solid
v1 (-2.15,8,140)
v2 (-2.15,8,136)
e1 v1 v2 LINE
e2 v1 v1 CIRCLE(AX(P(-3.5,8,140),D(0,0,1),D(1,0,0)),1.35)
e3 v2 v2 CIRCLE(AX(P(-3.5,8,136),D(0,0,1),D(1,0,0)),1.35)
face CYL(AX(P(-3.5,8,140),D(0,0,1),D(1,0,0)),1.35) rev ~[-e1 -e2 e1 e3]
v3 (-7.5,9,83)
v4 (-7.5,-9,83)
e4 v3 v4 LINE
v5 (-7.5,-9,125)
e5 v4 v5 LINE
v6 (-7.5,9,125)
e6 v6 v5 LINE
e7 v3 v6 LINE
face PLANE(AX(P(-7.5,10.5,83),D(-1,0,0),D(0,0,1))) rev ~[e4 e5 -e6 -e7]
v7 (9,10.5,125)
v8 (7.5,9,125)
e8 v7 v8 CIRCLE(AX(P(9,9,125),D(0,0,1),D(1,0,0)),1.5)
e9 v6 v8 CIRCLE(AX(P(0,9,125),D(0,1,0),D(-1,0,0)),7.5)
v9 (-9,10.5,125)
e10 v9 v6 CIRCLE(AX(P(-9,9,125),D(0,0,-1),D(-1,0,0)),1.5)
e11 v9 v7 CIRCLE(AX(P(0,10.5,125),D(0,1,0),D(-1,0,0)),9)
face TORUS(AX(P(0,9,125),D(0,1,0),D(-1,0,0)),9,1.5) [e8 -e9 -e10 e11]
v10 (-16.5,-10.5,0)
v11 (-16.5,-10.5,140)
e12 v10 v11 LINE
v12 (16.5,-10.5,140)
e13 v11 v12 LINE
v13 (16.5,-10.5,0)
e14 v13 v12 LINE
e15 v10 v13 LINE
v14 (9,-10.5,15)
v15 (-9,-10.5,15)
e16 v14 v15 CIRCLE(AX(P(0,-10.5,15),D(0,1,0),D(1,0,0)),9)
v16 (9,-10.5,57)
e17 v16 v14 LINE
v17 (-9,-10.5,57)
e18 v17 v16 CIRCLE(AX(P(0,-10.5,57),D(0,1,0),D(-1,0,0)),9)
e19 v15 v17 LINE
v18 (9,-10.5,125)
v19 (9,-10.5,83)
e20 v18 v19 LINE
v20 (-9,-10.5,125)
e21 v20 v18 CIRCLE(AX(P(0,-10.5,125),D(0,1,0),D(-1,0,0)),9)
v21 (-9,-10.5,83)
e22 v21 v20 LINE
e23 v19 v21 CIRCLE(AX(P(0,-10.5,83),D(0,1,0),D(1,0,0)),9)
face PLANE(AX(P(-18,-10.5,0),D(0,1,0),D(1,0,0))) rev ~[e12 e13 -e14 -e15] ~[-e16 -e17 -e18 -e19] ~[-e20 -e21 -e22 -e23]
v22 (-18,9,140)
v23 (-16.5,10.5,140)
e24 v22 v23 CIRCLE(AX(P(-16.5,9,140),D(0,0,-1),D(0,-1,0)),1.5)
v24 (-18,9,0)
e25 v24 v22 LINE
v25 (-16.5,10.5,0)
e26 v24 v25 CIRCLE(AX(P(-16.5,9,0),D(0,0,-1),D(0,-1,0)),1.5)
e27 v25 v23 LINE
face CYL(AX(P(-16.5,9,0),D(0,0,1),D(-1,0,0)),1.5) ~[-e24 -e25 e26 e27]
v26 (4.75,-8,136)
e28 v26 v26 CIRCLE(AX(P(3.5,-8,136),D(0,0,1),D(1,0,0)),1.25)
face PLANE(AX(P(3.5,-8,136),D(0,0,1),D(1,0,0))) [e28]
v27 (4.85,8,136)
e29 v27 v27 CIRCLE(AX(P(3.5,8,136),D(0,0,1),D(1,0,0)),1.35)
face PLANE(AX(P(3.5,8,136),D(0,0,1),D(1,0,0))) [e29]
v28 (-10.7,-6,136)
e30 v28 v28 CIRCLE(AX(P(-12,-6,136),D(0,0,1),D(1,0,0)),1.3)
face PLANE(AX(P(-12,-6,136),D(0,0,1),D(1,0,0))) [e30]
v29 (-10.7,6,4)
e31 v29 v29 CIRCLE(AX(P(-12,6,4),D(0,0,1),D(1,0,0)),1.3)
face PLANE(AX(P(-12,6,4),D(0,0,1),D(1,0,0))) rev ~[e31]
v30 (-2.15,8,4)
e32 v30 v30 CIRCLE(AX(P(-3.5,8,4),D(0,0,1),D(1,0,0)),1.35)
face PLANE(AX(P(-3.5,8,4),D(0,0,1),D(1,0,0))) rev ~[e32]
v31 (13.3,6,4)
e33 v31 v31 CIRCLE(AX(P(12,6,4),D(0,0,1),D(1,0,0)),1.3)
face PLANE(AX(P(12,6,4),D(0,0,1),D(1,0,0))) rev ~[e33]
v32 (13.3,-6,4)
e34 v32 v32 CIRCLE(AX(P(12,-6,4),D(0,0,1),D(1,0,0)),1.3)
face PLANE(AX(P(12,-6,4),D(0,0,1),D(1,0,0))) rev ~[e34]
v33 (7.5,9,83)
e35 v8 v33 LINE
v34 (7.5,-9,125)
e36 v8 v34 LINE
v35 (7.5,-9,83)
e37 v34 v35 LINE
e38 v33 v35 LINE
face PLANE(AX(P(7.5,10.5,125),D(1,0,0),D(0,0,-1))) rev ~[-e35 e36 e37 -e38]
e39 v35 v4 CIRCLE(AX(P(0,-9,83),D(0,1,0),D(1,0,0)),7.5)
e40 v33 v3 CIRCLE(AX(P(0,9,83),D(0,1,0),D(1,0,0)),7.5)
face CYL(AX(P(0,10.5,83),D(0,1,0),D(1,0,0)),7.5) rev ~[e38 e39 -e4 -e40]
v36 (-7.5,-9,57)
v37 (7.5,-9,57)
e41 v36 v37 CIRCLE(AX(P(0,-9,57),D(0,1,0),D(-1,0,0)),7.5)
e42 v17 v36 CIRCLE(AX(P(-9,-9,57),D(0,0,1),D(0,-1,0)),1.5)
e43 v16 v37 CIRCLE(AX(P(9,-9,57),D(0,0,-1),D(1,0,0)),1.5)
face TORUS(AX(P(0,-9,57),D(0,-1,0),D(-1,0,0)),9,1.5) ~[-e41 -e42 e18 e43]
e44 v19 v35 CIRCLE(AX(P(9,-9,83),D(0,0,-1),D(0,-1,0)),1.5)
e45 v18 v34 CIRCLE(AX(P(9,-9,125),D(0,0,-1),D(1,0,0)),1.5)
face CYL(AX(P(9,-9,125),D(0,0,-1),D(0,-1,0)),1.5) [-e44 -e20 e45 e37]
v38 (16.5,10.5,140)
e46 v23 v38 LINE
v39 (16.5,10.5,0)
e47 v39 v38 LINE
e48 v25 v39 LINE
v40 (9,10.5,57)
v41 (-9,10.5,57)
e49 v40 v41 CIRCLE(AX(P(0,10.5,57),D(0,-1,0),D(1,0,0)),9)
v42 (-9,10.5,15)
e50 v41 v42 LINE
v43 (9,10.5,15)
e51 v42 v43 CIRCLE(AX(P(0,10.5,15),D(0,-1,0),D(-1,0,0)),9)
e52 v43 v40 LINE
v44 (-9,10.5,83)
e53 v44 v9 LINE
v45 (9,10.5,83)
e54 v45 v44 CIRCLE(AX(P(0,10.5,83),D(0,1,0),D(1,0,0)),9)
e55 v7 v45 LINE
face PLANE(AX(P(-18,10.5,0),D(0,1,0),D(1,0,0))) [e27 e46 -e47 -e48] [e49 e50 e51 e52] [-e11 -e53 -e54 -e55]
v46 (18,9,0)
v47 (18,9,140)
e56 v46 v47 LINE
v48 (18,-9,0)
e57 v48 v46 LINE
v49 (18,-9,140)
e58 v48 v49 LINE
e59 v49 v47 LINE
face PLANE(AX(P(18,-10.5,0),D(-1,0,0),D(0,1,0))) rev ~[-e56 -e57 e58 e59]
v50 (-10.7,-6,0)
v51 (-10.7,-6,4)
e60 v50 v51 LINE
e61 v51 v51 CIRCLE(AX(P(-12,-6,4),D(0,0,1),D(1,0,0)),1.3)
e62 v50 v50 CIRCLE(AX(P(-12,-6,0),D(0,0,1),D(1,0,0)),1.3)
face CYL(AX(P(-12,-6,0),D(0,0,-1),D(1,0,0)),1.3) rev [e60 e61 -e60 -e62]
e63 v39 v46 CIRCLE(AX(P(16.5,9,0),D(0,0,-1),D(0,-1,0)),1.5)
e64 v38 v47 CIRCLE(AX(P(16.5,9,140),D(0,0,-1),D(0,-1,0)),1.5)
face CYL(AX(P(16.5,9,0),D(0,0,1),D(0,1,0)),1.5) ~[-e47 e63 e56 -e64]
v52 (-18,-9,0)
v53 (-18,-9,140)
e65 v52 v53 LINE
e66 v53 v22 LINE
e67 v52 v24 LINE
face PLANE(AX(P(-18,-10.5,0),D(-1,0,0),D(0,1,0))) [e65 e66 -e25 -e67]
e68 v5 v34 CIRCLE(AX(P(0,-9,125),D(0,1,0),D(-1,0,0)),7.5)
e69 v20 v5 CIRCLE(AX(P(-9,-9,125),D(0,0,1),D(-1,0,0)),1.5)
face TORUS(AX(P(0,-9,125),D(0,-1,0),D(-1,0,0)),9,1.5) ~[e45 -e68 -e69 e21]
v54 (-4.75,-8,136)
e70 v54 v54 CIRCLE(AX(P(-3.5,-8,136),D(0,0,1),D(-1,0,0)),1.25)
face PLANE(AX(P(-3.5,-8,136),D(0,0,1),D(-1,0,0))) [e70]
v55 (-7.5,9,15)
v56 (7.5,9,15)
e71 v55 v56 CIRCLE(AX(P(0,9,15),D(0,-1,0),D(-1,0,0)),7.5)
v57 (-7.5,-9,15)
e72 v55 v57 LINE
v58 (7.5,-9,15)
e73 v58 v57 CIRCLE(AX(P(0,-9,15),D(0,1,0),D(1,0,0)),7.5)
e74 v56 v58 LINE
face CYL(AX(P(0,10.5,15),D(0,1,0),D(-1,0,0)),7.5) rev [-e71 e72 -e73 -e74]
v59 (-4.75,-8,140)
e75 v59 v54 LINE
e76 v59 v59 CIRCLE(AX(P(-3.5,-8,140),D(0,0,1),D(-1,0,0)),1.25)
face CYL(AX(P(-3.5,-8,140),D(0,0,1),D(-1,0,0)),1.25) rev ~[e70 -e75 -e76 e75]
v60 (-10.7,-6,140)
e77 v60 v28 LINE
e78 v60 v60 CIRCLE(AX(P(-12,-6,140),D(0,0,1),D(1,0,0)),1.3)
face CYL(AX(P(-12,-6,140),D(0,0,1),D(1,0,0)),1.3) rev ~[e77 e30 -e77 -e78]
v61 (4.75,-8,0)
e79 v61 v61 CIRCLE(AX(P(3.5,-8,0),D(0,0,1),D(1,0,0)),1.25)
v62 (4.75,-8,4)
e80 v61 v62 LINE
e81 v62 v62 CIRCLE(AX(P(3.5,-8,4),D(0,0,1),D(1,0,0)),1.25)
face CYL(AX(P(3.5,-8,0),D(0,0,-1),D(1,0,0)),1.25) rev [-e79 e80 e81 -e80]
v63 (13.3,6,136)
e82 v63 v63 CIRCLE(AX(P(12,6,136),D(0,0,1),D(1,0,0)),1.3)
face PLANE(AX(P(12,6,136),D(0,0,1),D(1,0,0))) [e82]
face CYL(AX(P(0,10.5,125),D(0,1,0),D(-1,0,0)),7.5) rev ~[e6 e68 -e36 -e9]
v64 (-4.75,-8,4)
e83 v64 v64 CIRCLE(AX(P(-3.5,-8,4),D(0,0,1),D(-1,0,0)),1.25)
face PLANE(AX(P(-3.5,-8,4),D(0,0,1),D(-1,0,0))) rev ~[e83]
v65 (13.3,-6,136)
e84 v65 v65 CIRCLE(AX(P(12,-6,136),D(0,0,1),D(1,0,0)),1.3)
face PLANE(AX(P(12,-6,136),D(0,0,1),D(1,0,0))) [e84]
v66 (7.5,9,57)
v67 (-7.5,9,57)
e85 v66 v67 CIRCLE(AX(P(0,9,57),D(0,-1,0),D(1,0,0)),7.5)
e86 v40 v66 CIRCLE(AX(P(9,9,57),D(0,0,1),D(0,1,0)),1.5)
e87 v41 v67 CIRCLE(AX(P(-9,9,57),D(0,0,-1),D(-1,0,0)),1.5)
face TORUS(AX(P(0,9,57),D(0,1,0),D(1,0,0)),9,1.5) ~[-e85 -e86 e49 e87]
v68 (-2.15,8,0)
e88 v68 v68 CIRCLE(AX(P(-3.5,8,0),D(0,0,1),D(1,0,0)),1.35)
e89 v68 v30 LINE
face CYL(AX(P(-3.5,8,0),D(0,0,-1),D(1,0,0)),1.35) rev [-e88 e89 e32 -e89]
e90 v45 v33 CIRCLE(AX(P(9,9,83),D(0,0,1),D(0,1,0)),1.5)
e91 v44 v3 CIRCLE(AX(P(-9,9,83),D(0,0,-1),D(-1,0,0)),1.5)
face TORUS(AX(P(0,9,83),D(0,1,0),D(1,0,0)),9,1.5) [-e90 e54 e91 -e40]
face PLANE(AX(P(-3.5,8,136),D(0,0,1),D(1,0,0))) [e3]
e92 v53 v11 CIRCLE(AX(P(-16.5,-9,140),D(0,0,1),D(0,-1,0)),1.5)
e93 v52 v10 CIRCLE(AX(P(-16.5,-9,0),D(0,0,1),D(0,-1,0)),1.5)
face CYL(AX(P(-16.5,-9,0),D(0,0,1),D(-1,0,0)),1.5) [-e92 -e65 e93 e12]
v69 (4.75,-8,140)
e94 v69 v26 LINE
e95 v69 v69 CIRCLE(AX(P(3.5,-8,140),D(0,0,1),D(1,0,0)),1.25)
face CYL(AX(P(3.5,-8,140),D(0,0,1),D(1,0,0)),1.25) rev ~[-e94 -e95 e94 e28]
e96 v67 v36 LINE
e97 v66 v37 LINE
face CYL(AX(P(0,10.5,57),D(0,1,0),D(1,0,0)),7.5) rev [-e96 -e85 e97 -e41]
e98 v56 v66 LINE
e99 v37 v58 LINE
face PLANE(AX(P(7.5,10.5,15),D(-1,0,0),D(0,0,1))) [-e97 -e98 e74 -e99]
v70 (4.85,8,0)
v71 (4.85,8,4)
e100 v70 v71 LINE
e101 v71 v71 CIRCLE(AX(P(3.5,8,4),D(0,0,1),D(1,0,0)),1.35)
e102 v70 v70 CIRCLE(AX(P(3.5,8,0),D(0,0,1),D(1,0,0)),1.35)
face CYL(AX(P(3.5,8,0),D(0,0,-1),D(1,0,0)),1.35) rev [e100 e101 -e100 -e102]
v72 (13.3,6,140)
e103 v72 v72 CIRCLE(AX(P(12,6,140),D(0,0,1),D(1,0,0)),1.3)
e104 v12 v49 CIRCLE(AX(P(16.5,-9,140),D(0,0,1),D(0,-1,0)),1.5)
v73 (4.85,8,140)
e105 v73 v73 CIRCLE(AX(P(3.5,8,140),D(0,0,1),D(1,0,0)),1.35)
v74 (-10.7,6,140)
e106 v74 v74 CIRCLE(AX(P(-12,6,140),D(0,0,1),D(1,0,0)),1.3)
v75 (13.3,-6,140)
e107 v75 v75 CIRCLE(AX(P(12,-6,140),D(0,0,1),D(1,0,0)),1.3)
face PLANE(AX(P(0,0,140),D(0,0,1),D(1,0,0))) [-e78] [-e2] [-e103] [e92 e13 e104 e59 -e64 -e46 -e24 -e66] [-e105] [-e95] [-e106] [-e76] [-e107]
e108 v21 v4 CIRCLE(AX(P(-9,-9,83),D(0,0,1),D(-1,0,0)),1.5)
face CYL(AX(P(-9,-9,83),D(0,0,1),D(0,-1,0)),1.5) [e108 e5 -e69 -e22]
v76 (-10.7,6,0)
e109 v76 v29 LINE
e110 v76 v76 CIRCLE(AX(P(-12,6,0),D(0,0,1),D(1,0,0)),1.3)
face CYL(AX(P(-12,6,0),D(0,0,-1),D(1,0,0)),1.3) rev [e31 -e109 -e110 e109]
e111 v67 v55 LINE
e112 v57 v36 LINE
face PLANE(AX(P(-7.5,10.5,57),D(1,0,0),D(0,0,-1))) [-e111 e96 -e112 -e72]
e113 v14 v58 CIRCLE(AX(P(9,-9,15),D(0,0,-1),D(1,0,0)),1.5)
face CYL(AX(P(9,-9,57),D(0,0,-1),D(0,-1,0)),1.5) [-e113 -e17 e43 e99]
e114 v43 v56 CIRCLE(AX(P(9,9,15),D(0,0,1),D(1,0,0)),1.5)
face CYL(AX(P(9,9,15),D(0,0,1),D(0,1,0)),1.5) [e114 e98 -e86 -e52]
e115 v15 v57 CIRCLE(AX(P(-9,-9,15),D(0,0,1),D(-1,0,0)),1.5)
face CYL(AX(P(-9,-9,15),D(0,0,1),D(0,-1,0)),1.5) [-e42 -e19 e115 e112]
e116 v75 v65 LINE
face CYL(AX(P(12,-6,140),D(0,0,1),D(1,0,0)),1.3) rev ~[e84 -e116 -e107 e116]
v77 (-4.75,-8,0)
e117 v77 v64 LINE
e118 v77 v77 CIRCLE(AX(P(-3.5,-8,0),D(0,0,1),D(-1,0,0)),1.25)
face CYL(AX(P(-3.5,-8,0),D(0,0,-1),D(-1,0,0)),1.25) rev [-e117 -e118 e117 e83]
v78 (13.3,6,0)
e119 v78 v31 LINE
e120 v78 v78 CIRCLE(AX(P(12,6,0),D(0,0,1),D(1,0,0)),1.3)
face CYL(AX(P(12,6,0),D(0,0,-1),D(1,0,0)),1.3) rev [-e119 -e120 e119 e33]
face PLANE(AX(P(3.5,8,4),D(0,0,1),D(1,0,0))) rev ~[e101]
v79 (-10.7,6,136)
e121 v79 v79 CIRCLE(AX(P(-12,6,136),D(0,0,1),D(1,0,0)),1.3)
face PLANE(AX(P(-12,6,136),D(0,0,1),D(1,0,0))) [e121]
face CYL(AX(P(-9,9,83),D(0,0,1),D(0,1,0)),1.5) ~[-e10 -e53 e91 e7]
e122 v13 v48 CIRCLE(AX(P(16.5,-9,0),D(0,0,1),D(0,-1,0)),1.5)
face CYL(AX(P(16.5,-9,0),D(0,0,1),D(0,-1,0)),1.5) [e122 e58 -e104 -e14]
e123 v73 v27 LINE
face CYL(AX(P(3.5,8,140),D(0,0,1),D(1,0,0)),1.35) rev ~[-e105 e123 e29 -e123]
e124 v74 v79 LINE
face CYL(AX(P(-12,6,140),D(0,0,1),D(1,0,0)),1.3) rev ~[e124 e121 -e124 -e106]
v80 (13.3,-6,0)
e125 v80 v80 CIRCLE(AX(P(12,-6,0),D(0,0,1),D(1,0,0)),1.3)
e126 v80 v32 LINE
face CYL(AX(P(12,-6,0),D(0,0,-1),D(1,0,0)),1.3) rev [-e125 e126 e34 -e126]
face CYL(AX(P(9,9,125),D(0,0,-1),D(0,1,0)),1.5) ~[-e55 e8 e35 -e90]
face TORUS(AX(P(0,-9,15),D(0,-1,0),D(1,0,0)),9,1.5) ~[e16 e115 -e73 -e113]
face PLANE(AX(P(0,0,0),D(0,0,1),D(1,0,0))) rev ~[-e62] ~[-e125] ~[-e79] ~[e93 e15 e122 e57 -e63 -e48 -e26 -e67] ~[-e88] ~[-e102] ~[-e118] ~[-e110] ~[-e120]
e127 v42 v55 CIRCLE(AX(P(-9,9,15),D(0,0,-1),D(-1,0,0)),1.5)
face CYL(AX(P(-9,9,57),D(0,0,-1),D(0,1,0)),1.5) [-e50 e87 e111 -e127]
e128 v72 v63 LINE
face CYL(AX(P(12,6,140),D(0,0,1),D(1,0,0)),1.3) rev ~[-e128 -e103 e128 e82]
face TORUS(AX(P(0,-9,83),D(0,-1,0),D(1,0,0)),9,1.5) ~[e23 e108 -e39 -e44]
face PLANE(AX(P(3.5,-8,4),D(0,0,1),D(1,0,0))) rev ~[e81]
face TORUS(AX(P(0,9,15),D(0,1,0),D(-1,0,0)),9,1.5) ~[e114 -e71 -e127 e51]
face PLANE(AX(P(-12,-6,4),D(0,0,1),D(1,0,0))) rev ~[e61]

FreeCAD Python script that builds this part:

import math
import FreeCAD as App
import Part
import Sketcher
Q = App.Units.Quantity


def edges_at(feature, points):
    """Names of the edges that pass closest to the given points."""
    edges = feature.Shape.Edges
    near = lambda p: min(range(len(edges)), key=lambda i: edges[i].distToShape(Part.Vertex(*p))[0])
    return sorted({f"Edge{near(p) + 1}" for p in points})

doc = App.newDocument("Part")
body = doc.addObject("PartDesign::Body", "Body")

# Sketch on XY plane
sketch1 = doc.addObject("Sketcher::SketchObject", "Sketch")
body.addObject(sketch1)
sketch1.AttachmentSupport = (doc.XY_Plane, [""])
sketch1.MapMode = "FlatFace"
sketch1.addGeometry([
    Part.LineSegment(App.Vector(-18, 10, 0), App.Vector(-18, -10, 0)),
    Part.LineSegment(App.Vector(-18, -10, 0), App.Vector(18, -10, 0)),
    Part.LineSegment(App.Vector(18, -10, 0), App.Vector(18, 10, 0)),
    Part.LineSegment(App.Vector(18, 10, 0), App.Vector(-18, 10, 0)),
], False)
sketch1.addConstraint([
    Sketcher.Constraint("Coincident", 0, 2, 1, 1),
    Sketcher.Constraint("Coincident", 1, 2, 2, 1),
    Sketcher.Constraint("Coincident", 2, 2, 3, 1),
    Sketcher.Constraint("Coincident", 3, 2, 0, 1),
    Sketcher.Constraint("Vertical", 0),
    Sketcher.Constraint("Horizontal", 1),
    Sketcher.Constraint("Vertical", 2),
    Sketcher.Constraint("Horizontal", 3),
    Sketcher.Constraint("Symmetric", 0, 2, 2, 2, -1, 1),
    Sketcher.Constraint("DistanceX", 1, 1, 1, 2, Q("36 mm")),
    Sketcher.Constraint("DistanceY", 0, 2, 0, 1, Q("21 mm")),
])
pad1 = doc.addObject("PartDesign::Pad", "Pad")
body.addObject(pad1)
pad1.Profile = sketch1
pad1.Length = 140

# Sketch on XY plane
sketch2 = doc.addObject("Sketcher::SketchObject", "Sketch001")
body.addObject(sketch2)
sketch2.AttachmentSupport = (doc.XY_Plane, [""])
sketch2.MapMode = "FlatFace"
sketch2.addGeometry([
    Part.Circle(App.Vector(12, 6, 0), App.Vector(0, 0, 1), 1.3),  # 0
    Part.Circle(App.Vector(3.5, 8, 0), App.Vector(0, 0, 1), 1.4),  # 1
    Part.Circle(App.Vector(-3.5, 8, 0), App.Vector(0, 0, 1), 1.4),  # 2
    Part.Circle(App.Vector(-12, 6, 0), App.Vector(0, 0, 1), 1.3),  # 3
    Part.Circle(App.Vector(-12, -6, 0), App.Vector(0, 0, 1), 1.3),  # 4
    Part.Circle(App.Vector(-3.5, -8, 0), App.Vector(0, 0, 1), 1.2),  # 5
    Part.Circle(App.Vector(3.5, -8, 0), App.Vector(0, 0, 1), 1.2),  # 6
    Part.Circle(App.Vector(12, -6, 0), App.Vector(0, 0, 1), 1.3),  # 7
], False)
sketch2.addConstraint([
    Sketcher.Constraint("Equal", 1, 2),
    Sketcher.Constraint("Equal", 0, 3),
    Sketcher.Constraint("Equal", 3, 4),
    Sketcher.Constraint("Equal", 5, 6),
    Sketcher.Constraint("Equal", 4, 7),
    Sketcher.Constraint("Symmetric", 0, 3, 4, 3, -1, 1),
    Sketcher.Constraint("Symmetric", 1, 3, 5, 3, -1, 1),
    Sketcher.Constraint("Symmetric", 2, 3, 6, 3, -1, 1),
    Sketcher.Constraint("Symmetric", 3, 3, 7, 3, -1, 1),
    Sketcher.Constraint("Symmetric", 1, 3, 2, 3, -2),
    Sketcher.Constraint("Symmetric", 0, 3, 3, 3, -2),
    Sketcher.Constraint("Diameter", 0, Q("2.6 mm")),
    Sketcher.Constraint("Diameter", 1, Q("2.7 mm")),
    Sketcher.Constraint("Diameter", 5, Q("2.5 mm")),
    Sketcher.Constraint("DistanceX", -1, 1, 0, 3, Q("12 mm")),
    Sketcher.Constraint("DistanceY", -1, 1, 0, 3, Q("6 mm")),
    Sketcher.Constraint("DistanceY", -1, 1, 1, 3, Q("8 mm")),
    Sketcher.Constraint("DistanceX", 2, 3, 1, 3, Q("7 mm")),
])
pocket1 = doc.addObject("PartDesign::Pocket", "Pocket")
body.addObject(pocket1)
pocket1.Profile = sketch2
pocket1.Length = 4
pocket1.Reversed = True

# Sketch on XY plane
sketch3 = doc.addObject("Sketcher::SketchObject", "Sketch002")
body.addObject(sketch3)
sketch3.AttachmentSupport = (doc.XY_Plane, [""])
sketch3.MapMode = "FlatFace"
sketch3.AttachmentOffset = App.Placement(App.Vector(0, 0, 140), App.Rotation())
sketch3.addGeometry([
    Part.Circle(App.Vector(3.5, 8, 0), App.Vector(0, 0, 1), 1.4),  # 0
    Part.Circle(App.Vector(12, 6, 0), App.Vector(0, 0, 1), 1.3),  # 1
    Part.Circle(App.Vector(-3.5, 8, 0), App.Vector(0, 0, 1), 1.4),  # 2
    Part.Circle(App.Vector(-12, 6, 0), App.Vector(0, 0, 1), 1.3),  # 3
    Part.Circle(App.Vector(-12, -6, 0), App.Vector(0, 0, 1), 1.3),  # 4
    Part.Circle(App.Vector(-3.5, -8, 0), App.Vector(0, 0, 1), 1.2),  # 5
    Part.Circle(App.Vector(3.5, -8, 0), App.Vector(0, 0, 1), 1.2),  # 6
    Part.Circle(App.Vector(12, -6, 0), App.Vector(0, 0, 1), 1.3),  # 7
], False)
sketch3.addConstraint([
    Sketcher.Constraint("Equal", 0, 2),
    Sketcher.Constraint("Equal", 1, 3),
    Sketcher.Constraint("Equal", 3, 4),
    Sketcher.Constraint("Equal", 5, 6),
    Sketcher.Constraint("Equal", 4, 7),
    Sketcher.Constraint("Symmetric", 1, 3, 4, 3, -1, 1),
    Sketcher.Constraint("Symmetric", 0, 3, 5, 3, -1, 1),
    Sketcher.Constraint("Symmetric", 2, 3, 6, 3, -1, 1),
    Sketcher.Constraint("Symmetric", 3, 3, 7, 3, -1, 1),
    Sketcher.Constraint("Symmetric", 0, 3, 2, 3, -2),
    Sketcher.Constraint("Symmetric", 1, 3, 3, 3, -2),
    Sketcher.Constraint("Diameter", 0, Q("2.7 mm")),
    Sketcher.Constraint("Diameter", 1, Q("2.6 mm")),
    Sketcher.Constraint("Diameter", 5, Q("2.5 mm")),
    Sketcher.Constraint("DistanceY", -1, 1, 0, 3, Q("8 mm")),
    Sketcher.Constraint("DistanceX", -1, 1, 1, 3, Q("12 mm")),
    Sketcher.Constraint("DistanceY", -1, 1, 1, 3, Q("6 mm")),
    Sketcher.Constraint("DistanceX", 2, 3, 0, 3, Q("7 mm")),
])
pocket2 = doc.addObject("PartDesign::Pocket", "Pocket001")
body.addObject(pocket2)
pocket2.Profile = sketch3
pocket2.Length = 4

# Sketch on XZ plane
sketch4 = doc.addObject("Sketcher::SketchObject", "Sketch003")
body.addObject(sketch4)
sketch4.AttachmentSupport = (doc.XZ_Plane, [""])
sketch4.MapMode = "FlatFace"
sketch4.AttachmentOffset = App.Placement(App.Vector(0, 0, -10.5), App.Rotation())
sketch4.addGeometry([
    Part.LineSegment(App.Vector(8, 57, 0), App.Vector(8, 15, 0)),
    Part.ArcOfCircle(Part.Circle(App.Vector(0, 15, 0), App.Vector(0, 0, 1), 8), math.radians(180), math.radians(360)),
    Part.LineSegment(App.Vector(-8, 15, 0), App.Vector(-8, 57, 0)),
    Part.ArcOfCircle(Part.Circle(App.Vector(0, 57, 0), App.Vector(0, 0, 1), 8), math.radians(0), math.radians(180)),
], False)
sketch4.addConstraint([
    Sketcher.Constraint("Tangent", 0, 2, 1, 2),
    Sketcher.Constraint("Tangent", 1, 1, 2, 1),
    Sketcher.Constraint("Tangent", 2, 2, 3, 2),
    Sketcher.Constraint("Tangent", 3, 1, 0, 1),
    Sketcher.Constraint("Vertical", 0),
    Sketcher.Constraint("Vertical", 2),
    Sketcher.Constraint("PointOnObject", 1, 3, -2),
    Sketcher.Constraint("Radius", 1, Q("7.5 mm")),
    Sketcher.Constraint("DistanceY", 0, 2, 0, 1, Q("42 mm")),
    Sketcher.Constraint("DistanceY", -1, 1, 1, 3, Q("15 mm")),
])
pocket3 = doc.addObject("PartDesign::Pocket", "Pocket002")
body.addObject(pocket3)
pocket3.Profile = sketch4
pocket3.Type = "UpToFirst"
pocket3.Reversed = True

# Sketch on XZ plane
sketch5 = doc.addObject("Sketcher::SketchObject", "Sketch004")
body.addObject(sketch5)
sketch5.AttachmentSupport = (doc.XZ_Plane, [""])
sketch5.MapMode = "FlatFace"
sketch5.AttachmentOffset = App.Placement(App.Vector(0, 0, -10.5), App.Rotation())
sketch5.addGeometry([
    Part.LineSegment(App.Vector(8, 125, 0), App.Vector(8, 83, 0)),
    Part.ArcOfCircle(Part.Circle(App.Vector(0, 83, 0), App.Vector(0, 0, 1), 8), math.radians(180), math.radians(360)),
    Part.LineSegment(App.Vector(-8, 83, 0), App.Vector(-8, 125, 0)),
    Part.ArcOfCircle(Part.Circle(App.Vector(0, 125, 0), App.Vector(0, 0, 1), 8), math.radians(0), math.radians(180)),
], False)
sketch5.addConstraint([
    Sketcher.Constraint("Tangent", 0, 2, 1, 2),
    Sketcher.Constraint("Tangent", 1, 1, 2, 1),
    Sketcher.Constraint("Tangent", 2, 2, 3, 2),
    Sketcher.Constraint("Tangent", 3, 1, 0, 1),
    Sketcher.Constraint("Vertical", 0),
    Sketcher.Constraint("Vertical", 2),
    Sketcher.Constraint("PointOnObject", 1, 3, -2),
    Sketcher.Constraint("Radius", 1, Q("7.5 mm")),
    Sketcher.Constraint("DistanceY", 0, 2, 0, 1, Q("42 mm")),
    Sketcher.Constraint("DistanceY", -1, 1, 1, 3, Q("83 mm")),
])
pocket4 = doc.addObject("PartDesign::Pocket", "Pocket003")
body.addObject(pocket4)
pocket4.Profile = sketch5
pocket4.Type = "UpToFirst"
pocket4.Reversed = True
doc.recompute()

fillet = doc.addObject("PartDesign::Fillet", "Fillet")
body.addObject(fillet)
fillet.Base = (pocket4, edges_at(pocket4, [
    (0, -10.5, 7.5),
    (7.5, -10.5, 36),
    (0, -10.5, 64.5),
    (-7.5, -10.5, 36),
    (0, 10.5, 7.5),
    (-18, 10.5, 70),
    (-7.5, 10.5, 36),
    (0, 10.5, 64.5),
    (7.5, 10.5, 36),
    (18, 10.5, 70),
    (18, -10.5, 70),
    (-18, -10.5, 70),
    (0, -10.5, 132.5),
    (-7.5, -10.5, 104),
    (0, -10.5, 75.5),
    (7.5, -10.5, 104),
    (0, 10.5, 132.5),
    (7.5, 10.5, 104),
    (0, 10.5, 75.5),
    (-7.5, 10.5, 104),
]))
fillet.Radius = 1.5

doc.recompute()
